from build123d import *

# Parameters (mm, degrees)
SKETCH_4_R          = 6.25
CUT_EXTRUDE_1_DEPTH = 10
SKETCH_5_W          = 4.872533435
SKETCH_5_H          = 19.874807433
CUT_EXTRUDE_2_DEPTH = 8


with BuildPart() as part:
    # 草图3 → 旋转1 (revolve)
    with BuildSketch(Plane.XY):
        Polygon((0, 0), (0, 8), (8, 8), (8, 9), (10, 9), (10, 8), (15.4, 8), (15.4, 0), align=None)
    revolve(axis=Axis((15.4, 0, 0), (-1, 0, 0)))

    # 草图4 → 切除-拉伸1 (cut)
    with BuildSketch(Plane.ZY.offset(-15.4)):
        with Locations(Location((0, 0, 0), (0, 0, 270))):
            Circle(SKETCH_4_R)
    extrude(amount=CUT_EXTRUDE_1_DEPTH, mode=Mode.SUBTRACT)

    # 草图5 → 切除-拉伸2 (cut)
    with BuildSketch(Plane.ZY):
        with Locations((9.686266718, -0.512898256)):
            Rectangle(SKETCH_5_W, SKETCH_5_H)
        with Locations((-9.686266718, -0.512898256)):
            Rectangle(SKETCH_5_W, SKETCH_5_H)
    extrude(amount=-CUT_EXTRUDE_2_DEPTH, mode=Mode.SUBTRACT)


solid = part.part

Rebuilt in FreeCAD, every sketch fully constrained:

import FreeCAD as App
import Part
import Sketcher
Q = App.Units.Quantity

doc = App.newDocument("Part")
body = doc.addObject("PartDesign::Body", "Body")

# Sketch on XY plane
sketch1 = body.newObject("Sketcher::SketchObject", "Sketch")
sketch1.AttachmentSupport = (doc.getObject("XY_Plane"), [""])
sketch1.MapMode = "FlatFace"
sketch1.addGeometry([
    Part.LineSegment(App.Vector(0, 8, 0), App.Vector(0, 0, 0)),  # 0
    Part.LineSegment(App.Vector(0, 0, 0), App.Vector(15.4, 0, 0)),  # 1
    Part.LineSegment(App.Vector(15.4, 0, 0), App.Vector(15.4, 8, 0)),  # 2
    Part.LineSegment(App.Vector(15.4, 8, 0), App.Vector(10, 8, 0)),  # 3
    Part.LineSegment(App.Vector(10, 8, 0), App.Vector(10, 9, 0)),  # 4
    Part.LineSegment(App.Vector(10, 9, 0), App.Vector(8, 9, 0)),  # 5
    Part.LineSegment(App.Vector(8, 9, 0), App.Vector(8, 8, 0)),  # 6
    Part.LineSegment(App.Vector(8, 8, 0), App.Vector(0, 8, 0)),  # 7
], False)
sketch1.addConstraint([
    Sketcher.Constraint("Coincident", 0, 2, 1, 1),
    Sketcher.Constraint("Coincident", 1, 2, 2, 1),
    Sketcher.Constraint("Coincident", 2, 2, 3, 1),
    Sketcher.Constraint("Coincident", 3, 2, 4, 1),
    Sketcher.Constraint("Coincident", 4, 2, 5, 1),
    Sketcher.Constraint("Coincident", 5, 2, 6, 1),
    Sketcher.Constraint("Coincident", 6, 2, 7, 1),
    Sketcher.Constraint("Coincident", 7, 2, 0, 1),
    Sketcher.Constraint("Vertical", 0),
    Sketcher.Constraint("Horizontal", 1),
    Sketcher.Constraint("Vertical", 2),
    Sketcher.Constraint("Horizontal", 3),
    Sketcher.Constraint("Vertical", 4),
    Sketcher.Constraint("Horizontal", 5),
    Sketcher.Constraint("Vertical", 6),
    Sketcher.Constraint("Horizontal", 7),
    Sketcher.Constraint("Coincident", 0, 2, -1, 1),
    Sketcher.Constraint("Horizontal", 3, 2, 6, 2),
    Sketcher.Constraint("Equal", 7, 0),
    Sketcher.Constraint("DistanceX", 5, 2, 5, 1, Q("2 mm")),
    Sketcher.Constraint("DistanceX", 7, 2, 7, 1, Q("8 mm")),
    Sketcher.Constraint("DistanceY", 4, 1, 4, 2, Q("1 mm")),
    Sketcher.Constraint("DistanceX", 1, 1, 1, 2, Q("15.4 mm")),
])
revolution = body.newObject("PartDesign::Revolution", "Revolution")
revolution.Profile = sketch1
revolution.ReferenceAxis = (sketch1, ["H_Axis"])
revolution.Angle = 360

# Sketch on YZ plane
sketch2 = body.newObject("Sketcher::SketchObject", "Sketch001")
sketch2.AttachmentSupport = (doc.getObject("YZ_Plane"), [""])
sketch2.MapMode = "FlatFace"
sketch2.AttachmentOffset = App.Placement(App.Vector(0, 0, 15.4), App.Rotation())
sketch2.addGeometry(Part.Circle(App.Vector(0, 0, 0), App.Vector(0, 0, 1), 6), False)
sketch2.addConstraint([
    Sketcher.Constraint("Coincident", 0, 3, -1, 1),
    Sketcher.Constraint("Diameter", 0, Q("12.5 mm")),
])
pocket1 = body.newObject("PartDesign::Pocket", "Pocket")
pocket1.Profile = sketch2
pocket1.Length = 10

# Sketch on YZ plane
sketch3 = body.newObject("Sketcher::SketchObject", "Sketch002")
sketch3.AttachmentSupport = (doc.getObject("YZ_Plane"), [""])
sketch3.MapMode = "FlatFace"
sketch3.addGeometry([
    Part.LineSegment(App.Vector(9.4, 7.3, 0), App.Vector(-10.5, 7.3, 0)),  # 0
    Part.LineSegment(App.Vector(-10.5, 7.3, 0), App.Vector(-10.5, 12.1, 0)),  # 1
    Part.LineSegment(App.Vector(-10.5, 12.1, 0), App.Vector(9.4, 12.1, 0)),  # 2
    Part.LineSegment(App.Vector(9.4, 12.1, 0), App.Vector(9.4, 7.3, 0)),  # 3
    Part.LineSegment(App.Vector(9.4, -12.1, 0), App.Vector(-10.5, -12.1, 0)),  # 4
    Part.LineSegment(App.Vector(-10.5, -12.1, 0), App.Vector(-10.5, -7.3, 0)),  # 5
    Part.LineSegment(App.Vector(-10.5, -7.3, 0), App.Vector(9.4, -7.3, 0)),  # 6
    Part.LineSegment(App.Vector(9.4, -7.3, 0), App.Vector(9.4, -12.1, 0)),  # 7
], False)
sketch3.addConstraint([
    Sketcher.Constraint("Coincident", 0, 2, 1, 1),
    Sketcher.Constraint("Coincident", 1, 2, 2, 1),
    Sketcher.Constraint("Coincident", 2, 2, 3, 1),
    Sketcher.Constraint("Coincident", 3, 2, 0, 1),
    Sketcher.Constraint("Coincident", 4, 2, 5, 1),
    Sketcher.Constraint("Coincident", 5, 2, 6, 1),
    Sketcher.Constraint("Coincident", 6, 2, 7, 1),
    Sketcher.Constraint("Coincident", 7, 2, 4, 1),
    Sketcher.Constraint("Horizontal", 0),
    Sketcher.Constraint("Vertical", 1),
    Sketcher.Constraint("Horizontal", 2),
    Sketcher.Constraint("Vertical", 3),
    Sketcher.Constraint("Horizontal", 4),
    Sketcher.Constraint("Vertical", 5),
    Sketcher.Constraint("Horizontal", 6),
    Sketcher.Constraint("Vertical", 7),
    Sketcher.Constraint("Symmetric", 1, 2, 4, 2, -1),
    Sketcher.Constraint("Symmetric", 3, 2, 6, 2, -1),
    Sketcher.Constraint("DistanceY", 5, 2, 0, 2, Q("14.5 mm")),
    Sketcher.Constraint("DistanceX", 0, 2, -1, 1, Q("10.450302 mm")),
    Sketcher.Constraint("DistanceX", 0, 2, 0, 1, Q("19.874807 mm")),
    Sketcher.Constraint("DistanceY", 1, 1, 1, 2, Q("4.872533 mm")),
])
pocket2 = body.newObject("PartDesign::Pocket", "Pocket001")
pocket2.Profile = sketch3
pocket2.Length = 8
pocket2.Reversed = True

doc.recompute()
